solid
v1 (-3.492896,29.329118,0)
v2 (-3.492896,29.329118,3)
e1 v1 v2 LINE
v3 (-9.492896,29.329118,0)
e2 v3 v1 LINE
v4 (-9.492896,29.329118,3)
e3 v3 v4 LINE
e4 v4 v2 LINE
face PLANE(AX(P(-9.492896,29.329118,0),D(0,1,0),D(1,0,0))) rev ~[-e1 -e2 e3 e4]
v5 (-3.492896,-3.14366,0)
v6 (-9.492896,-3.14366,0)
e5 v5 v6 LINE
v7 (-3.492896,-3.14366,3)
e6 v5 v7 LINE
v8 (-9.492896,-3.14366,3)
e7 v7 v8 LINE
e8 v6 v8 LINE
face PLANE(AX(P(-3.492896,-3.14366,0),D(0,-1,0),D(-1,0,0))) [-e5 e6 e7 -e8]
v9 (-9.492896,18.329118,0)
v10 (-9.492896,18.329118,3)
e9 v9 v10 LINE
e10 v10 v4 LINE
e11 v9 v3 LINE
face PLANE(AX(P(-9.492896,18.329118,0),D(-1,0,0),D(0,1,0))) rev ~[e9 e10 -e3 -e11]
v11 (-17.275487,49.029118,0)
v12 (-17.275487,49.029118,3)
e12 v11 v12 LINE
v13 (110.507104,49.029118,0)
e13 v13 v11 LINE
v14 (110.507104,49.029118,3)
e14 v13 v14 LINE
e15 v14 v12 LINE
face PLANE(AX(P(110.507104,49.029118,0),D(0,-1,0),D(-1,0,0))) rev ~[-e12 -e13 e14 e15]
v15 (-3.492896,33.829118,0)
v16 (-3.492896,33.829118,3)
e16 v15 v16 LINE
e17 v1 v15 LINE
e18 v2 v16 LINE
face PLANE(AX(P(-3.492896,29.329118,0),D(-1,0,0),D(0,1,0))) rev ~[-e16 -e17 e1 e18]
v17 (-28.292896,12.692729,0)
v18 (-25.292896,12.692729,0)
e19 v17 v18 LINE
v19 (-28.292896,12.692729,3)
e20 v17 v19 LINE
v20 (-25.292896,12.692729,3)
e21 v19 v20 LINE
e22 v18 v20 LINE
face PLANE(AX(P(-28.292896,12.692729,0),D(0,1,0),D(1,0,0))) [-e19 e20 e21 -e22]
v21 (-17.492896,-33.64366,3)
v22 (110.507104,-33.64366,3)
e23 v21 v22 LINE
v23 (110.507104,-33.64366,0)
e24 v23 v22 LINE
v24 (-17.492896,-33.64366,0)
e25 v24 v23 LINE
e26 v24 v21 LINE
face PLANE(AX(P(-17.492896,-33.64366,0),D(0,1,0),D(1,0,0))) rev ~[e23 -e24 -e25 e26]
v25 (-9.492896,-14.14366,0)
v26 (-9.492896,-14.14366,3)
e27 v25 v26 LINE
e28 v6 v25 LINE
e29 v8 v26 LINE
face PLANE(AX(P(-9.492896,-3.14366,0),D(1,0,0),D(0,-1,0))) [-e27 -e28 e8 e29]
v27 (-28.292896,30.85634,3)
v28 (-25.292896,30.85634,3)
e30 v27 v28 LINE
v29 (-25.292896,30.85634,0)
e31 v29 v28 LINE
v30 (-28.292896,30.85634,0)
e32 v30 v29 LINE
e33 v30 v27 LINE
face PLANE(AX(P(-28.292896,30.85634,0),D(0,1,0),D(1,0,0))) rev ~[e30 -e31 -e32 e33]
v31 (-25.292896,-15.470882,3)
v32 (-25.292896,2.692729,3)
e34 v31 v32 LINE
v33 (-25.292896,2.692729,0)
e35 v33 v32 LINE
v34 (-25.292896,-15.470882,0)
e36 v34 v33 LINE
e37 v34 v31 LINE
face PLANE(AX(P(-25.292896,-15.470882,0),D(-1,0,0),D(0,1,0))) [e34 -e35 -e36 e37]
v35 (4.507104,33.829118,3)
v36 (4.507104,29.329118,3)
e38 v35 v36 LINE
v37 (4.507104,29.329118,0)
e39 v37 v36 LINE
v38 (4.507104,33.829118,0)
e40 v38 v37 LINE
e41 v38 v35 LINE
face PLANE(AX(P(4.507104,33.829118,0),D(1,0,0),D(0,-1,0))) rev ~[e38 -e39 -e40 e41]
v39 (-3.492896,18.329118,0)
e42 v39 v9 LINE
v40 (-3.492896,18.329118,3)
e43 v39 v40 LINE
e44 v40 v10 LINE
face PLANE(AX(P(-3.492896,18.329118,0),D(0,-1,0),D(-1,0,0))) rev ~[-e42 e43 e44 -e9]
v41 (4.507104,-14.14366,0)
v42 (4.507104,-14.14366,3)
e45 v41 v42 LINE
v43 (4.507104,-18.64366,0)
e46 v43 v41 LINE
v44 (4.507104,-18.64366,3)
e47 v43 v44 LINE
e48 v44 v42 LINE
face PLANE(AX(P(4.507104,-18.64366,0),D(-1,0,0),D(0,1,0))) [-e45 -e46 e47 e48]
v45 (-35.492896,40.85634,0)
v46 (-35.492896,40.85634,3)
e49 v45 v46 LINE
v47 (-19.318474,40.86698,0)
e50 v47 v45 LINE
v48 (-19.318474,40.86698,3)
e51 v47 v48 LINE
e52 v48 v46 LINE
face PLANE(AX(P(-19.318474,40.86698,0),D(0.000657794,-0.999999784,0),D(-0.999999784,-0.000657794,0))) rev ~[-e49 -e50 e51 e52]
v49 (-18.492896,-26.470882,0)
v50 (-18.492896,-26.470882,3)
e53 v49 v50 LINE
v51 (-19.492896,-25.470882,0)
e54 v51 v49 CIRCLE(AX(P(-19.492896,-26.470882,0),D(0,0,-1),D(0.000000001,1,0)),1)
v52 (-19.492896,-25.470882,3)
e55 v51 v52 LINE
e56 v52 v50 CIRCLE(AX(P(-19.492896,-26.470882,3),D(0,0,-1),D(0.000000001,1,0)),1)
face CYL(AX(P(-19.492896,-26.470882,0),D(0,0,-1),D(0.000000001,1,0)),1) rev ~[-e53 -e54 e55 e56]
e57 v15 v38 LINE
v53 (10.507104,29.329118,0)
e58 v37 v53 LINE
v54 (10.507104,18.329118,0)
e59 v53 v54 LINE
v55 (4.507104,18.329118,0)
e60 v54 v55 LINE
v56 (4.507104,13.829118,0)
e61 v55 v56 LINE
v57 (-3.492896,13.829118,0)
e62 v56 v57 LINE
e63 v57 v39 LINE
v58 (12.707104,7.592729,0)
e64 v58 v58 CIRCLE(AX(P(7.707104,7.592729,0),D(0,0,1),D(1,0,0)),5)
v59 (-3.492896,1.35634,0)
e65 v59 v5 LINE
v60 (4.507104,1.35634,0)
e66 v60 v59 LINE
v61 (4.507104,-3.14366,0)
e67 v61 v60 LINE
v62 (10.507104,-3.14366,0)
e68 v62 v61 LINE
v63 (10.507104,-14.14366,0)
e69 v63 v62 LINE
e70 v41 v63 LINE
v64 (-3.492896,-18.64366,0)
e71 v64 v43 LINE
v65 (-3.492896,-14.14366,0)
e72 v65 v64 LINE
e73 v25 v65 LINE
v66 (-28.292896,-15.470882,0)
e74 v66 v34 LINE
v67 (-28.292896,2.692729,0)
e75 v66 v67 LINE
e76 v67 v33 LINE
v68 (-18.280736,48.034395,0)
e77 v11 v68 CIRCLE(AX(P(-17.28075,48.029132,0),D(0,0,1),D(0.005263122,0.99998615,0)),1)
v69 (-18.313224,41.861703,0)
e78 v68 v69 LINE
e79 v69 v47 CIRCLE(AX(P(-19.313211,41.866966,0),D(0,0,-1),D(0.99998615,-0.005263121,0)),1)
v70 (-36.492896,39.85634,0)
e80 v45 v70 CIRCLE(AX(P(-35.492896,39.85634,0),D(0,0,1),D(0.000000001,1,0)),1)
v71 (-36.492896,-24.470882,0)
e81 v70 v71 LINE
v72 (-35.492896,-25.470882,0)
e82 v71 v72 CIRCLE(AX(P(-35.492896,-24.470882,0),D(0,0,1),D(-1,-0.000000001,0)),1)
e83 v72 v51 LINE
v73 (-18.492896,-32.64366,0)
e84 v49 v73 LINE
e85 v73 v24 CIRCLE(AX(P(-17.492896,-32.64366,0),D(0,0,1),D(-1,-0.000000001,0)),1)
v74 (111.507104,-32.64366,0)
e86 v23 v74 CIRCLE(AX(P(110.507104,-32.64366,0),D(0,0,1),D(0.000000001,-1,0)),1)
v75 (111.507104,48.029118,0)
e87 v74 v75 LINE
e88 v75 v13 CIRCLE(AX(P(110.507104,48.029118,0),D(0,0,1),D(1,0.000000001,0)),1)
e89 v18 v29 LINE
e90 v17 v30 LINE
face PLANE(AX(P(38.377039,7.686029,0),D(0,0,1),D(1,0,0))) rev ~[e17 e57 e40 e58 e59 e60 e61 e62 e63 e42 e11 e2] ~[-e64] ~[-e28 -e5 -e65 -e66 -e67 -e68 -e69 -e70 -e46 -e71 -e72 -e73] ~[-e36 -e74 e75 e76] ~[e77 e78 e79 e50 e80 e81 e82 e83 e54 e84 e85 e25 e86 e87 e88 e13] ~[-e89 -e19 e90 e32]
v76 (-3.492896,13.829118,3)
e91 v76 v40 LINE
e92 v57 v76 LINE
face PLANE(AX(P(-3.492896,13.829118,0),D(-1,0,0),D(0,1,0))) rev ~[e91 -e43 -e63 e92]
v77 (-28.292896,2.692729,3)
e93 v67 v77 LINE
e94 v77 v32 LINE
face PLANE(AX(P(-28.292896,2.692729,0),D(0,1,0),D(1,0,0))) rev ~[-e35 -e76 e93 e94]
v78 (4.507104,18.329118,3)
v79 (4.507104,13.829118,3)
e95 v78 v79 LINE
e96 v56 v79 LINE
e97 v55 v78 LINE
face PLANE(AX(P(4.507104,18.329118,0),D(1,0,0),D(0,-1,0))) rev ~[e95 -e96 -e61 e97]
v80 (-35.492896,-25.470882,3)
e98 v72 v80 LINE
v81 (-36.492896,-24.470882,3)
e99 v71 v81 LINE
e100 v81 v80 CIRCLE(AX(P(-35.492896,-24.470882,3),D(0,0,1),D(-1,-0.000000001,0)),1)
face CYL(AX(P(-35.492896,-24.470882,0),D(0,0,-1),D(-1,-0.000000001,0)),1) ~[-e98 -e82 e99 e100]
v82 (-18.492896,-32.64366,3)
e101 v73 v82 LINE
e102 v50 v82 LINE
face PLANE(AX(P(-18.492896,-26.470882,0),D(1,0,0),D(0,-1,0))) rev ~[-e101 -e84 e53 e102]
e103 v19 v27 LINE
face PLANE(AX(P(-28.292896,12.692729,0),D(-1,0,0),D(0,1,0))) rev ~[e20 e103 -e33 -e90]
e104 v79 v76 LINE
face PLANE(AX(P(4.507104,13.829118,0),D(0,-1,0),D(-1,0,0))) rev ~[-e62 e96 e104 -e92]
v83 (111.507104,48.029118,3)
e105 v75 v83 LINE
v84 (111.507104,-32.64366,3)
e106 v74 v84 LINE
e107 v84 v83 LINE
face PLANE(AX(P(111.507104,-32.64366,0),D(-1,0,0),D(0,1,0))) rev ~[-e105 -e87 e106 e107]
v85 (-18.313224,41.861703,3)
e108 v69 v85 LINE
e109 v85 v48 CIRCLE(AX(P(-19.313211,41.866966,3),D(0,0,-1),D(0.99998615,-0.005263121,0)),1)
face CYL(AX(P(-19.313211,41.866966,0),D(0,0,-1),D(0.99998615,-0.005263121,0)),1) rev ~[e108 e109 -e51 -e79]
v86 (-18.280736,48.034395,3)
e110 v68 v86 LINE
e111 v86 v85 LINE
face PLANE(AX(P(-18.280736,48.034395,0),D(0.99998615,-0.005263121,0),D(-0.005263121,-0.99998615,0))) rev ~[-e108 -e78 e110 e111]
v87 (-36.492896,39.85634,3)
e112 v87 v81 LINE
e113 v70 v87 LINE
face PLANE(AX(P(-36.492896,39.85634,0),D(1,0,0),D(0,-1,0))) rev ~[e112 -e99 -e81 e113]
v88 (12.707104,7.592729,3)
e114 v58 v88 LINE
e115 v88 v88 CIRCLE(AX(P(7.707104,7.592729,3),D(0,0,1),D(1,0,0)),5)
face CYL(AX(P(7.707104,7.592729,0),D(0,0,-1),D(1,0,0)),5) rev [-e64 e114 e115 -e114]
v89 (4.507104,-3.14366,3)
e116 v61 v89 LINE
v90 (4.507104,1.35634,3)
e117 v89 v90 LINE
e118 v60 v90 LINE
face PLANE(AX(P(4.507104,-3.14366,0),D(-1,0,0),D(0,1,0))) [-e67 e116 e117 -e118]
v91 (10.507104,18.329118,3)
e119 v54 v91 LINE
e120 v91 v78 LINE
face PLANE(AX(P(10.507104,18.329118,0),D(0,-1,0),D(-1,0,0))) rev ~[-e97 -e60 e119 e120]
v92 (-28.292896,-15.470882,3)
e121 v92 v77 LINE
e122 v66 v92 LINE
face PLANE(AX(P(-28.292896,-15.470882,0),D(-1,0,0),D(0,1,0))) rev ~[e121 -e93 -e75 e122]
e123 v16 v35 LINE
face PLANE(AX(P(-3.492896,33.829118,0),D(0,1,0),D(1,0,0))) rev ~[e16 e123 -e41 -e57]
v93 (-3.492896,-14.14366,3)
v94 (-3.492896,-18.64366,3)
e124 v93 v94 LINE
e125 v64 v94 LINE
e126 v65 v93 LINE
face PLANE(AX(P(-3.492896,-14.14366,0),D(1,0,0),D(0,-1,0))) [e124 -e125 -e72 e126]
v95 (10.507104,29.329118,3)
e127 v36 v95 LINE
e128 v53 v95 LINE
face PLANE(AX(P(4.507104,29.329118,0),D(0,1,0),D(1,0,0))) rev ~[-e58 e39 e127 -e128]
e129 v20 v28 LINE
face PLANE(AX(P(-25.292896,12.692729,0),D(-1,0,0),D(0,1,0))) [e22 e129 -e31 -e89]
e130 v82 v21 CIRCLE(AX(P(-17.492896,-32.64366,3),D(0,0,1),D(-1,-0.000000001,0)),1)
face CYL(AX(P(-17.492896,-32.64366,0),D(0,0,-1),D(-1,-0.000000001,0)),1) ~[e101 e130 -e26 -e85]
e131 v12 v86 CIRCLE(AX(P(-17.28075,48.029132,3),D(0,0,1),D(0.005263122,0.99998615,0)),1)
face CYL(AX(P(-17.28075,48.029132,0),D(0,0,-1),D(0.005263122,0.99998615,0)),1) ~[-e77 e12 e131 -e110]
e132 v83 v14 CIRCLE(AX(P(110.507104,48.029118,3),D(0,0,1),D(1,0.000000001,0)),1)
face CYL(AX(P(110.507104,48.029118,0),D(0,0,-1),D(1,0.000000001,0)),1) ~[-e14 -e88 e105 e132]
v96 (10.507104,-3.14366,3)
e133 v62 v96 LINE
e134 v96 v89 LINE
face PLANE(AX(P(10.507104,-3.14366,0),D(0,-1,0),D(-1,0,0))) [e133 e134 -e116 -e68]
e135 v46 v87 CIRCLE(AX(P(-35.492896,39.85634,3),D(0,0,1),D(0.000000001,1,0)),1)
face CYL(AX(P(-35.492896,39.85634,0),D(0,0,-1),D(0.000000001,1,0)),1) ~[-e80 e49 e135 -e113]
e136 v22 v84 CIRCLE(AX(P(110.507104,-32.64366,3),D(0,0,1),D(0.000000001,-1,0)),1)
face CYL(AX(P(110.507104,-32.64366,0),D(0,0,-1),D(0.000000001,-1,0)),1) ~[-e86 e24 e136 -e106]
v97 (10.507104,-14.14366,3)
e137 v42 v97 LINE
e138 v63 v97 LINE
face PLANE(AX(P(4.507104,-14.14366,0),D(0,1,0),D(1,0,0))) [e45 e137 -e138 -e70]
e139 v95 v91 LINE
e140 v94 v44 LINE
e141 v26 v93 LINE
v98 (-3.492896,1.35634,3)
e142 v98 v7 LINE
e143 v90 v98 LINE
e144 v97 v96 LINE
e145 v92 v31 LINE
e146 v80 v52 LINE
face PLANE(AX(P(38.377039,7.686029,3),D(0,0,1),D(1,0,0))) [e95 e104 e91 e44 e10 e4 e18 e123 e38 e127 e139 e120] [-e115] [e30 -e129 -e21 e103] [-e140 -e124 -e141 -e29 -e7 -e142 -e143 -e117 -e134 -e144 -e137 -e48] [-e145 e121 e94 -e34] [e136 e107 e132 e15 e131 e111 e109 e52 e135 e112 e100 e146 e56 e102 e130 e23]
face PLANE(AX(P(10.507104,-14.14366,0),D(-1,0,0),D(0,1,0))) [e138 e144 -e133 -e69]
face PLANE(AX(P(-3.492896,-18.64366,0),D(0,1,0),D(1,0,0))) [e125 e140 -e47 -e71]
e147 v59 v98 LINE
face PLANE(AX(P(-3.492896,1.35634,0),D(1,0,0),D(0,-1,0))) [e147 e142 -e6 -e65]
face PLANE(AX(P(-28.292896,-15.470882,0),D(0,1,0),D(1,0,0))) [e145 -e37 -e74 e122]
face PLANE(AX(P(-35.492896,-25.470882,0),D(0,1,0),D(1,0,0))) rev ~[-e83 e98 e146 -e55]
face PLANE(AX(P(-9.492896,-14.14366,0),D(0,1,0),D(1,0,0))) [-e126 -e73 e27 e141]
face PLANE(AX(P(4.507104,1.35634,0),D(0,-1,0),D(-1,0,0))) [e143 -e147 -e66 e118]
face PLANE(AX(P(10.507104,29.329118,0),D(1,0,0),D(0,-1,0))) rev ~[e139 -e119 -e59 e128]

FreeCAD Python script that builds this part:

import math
import FreeCAD as App
import Part
import Sketcher
from FreeCAD import Vector


def add_polygon(sketch, points):
    """Adds a closed chain of lines whose ends are joined by coincident constraints."""
    first, n = sketch.GeometryCount, len(points)
    for a, b in zip(points, points[1:] + points[:1]):
        sketch.addGeometry(Part.LineSegment(App.Vector(*a, 0), App.Vector(*b, 0)), False)
    for i in range(n):
        sketch.addConstraint(Sketcher.Constraint("Coincident", first + i, 2, first + (i + 1) % n, 1))

doc = App.newDocument("Part")
body = doc.addObject("PartDesign::Body", "Body")

sketch1 = body.newObject("Sketcher::SketchObject", "Sketch")
sketch1.AttachmentSupport = (doc.getObject("XY_Plane"), [""])
sketch1.MapMode = "FlatFace"
sketch1.addGeometry(Part.LineSegment(Vector(110.507104, 49.029118, 0), Vector(-17.275487, 49.029118, 0)), False)
sketch1.addGeometry(Part.ArcOfCircle(Part.Circle(Vector(-17.28075, 48.029132, 0), Vector(0, 0, 1), 1), math.radians(89.698444), math.radians(179.698444)), False)
sketch1.addGeometry(Part.LineSegment(Vector(-18.280736, 48.034395, 0), Vector(-18.313224, 41.861703, 0)), False)
sketch1.addGeometry(Part.ArcOfCircle(Part.Circle(Vector(-19.313211, 41.866966, 0), Vector(0, 0, 1), 1), math.radians(-90.301556), math.radians(-0.301556)), False)
sketch1.addGeometry(Part.LineSegment(Vector(-19.318474, 40.86698, 0), Vector(-35.492896, 40.85634, 0)), False)
sketch1.addGeometry(Part.ArcOfCircle(Part.Circle(Vector(-35.492896, 39.85634, 0), Vector(0, 0, 1), 1), math.radians(90), math.radians(180)), False)
sketch1.addGeometry(Part.LineSegment(Vector(-36.492896, 39.85634, 0), Vector(-36.492896, -24.470882, 0)), False)
sketch1.addGeometry(Part.ArcOfCircle(Part.Circle(Vector(-35.492896, -24.470882, 0), Vector(0, 0, 1), 1), math.radians(-180), math.radians(-90)), False)
sketch1.addGeometry(Part.LineSegment(Vector(-35.492896, -25.470882, 0), Vector(-19.492896, -25.470882, 0)), False)
sketch1.addGeometry(Part.ArcOfCircle(Part.Circle(Vector(-19.492896, -26.470882, 0), Vector(0, 0, 1), 1), math.radians(0), math.radians(90)), False)
sketch1.addGeometry(Part.LineSegment(Vector(-18.492896, -26.470882, 0), Vector(-18.492896, -32.64366, 0)), False)
sketch1.addGeometry(Part.ArcOfCircle(Part.Circle(Vector(-17.492896, -32.64366, 0), Vector(0, 0, 1), 1), math.radians(-180), math.radians(-90)), False)
sketch1.addGeometry(Part.LineSegment(Vector(-17.492896, -33.64366, 0), Vector(110.507104, -33.64366, 0)), False)
sketch1.addGeometry(Part.ArcOfCircle(Part.Circle(Vector(110.507104, -32.64366, 0), Vector(0, 0, 1), 1), math.radians(-90), math.radians(0)), False)
sketch1.addGeometry(Part.LineSegment(Vector(111.507104, -32.64366, 0), Vector(111.507104, 48.029118, 0)), False)
sketch1.addGeometry(Part.ArcOfCircle(Part.Circle(Vector(110.507104, 48.029118, 0), Vector(0, 0, 1), 1), math.radians(0), math.radians(90)), False)
add_polygon(sketch1, [(-25.292896, -15.470882), (-28.292896, -15.470882), (-28.292896, 2.692729), (-25.292896, 2.692729)])
add_polygon(sketch1, [(4.507104, -3.14366), (10.507104, -3.14366), (10.507104, -14.14366), (4.507104, -14.14366), (4.507104, -18.64366), (-3.492896, -18.64366), (-3.492896, -14.14366), (-9.492896, -14.14366), (-9.492896, -3.14366), (-3.492896, -3.14366), (-3.492896, 1.35634), (4.507104, 1.35634)])
add_polygon(sketch1, [(-25.292896, 12.692729), (-28.292896, 12.692729), (-28.292896, 30.85634), (-25.292896, 30.85634)])
sketch1.addGeometry(Part.Circle(Vector(7.707104, 7.592729, 0), Vector(0, 0, 1), 5), False)
add_polygon(sketch1, [(10.507104, 29.329118), (10.507104, 18.329118), (4.507104, 18.329118), (4.507104, 13.829118), (-3.492896, 13.829118), (-3.492896, 18.329118), (-9.492896, 18.329118), (-9.492896, 29.329118), (-3.492896, 29.329118), (-3.492896, 33.829118), (4.507104, 33.829118), (4.507104, 29.329118)])
sketch1.addConstraint([
    Sketcher.Constraint("Coincident", 0, 2, 1, 1),
    Sketcher.Constraint("Tangent", 1, 2, 2, 1),
    Sketcher.Constraint("Tangent", 2, 2, 3, 2),
    Sketcher.Constraint("Coincident", 3, 1, 4, 1),
    Sketcher.Constraint("Coincident", 4, 2, 5, 1),
    Sketcher.Constraint("Tangent", 5, 2, 6, 1),
    Sketcher.Constraint("Tangent", 6, 2, 7, 1),
    Sketcher.Constraint("Tangent", 7, 2, 8, 1),
    Sketcher.Constraint("Tangent", 8, 2, 9, 2),
    Sketcher.Constraint("Tangent", 9, 1, 10, 1),
    Sketcher.Constraint("Tangent", 10, 2, 11, 1),
    Sketcher.Constraint("Tangent", 11, 2, 12, 1),
    Sketcher.Constraint("Tangent", 12, 2, 13, 1),
    Sketcher.Constraint("Tangent", 13, 2, 14, 1),
    Sketcher.Constraint("Tangent", 14, 2, 15, 1),
    Sketcher.Constraint("Tangent", 15, 2, 0, 1),
    Sketcher.Constraint("Horizontal", 0),
    Sketcher.Constraint("Vertical", 6),
    Sketcher.Constraint("Horizontal", 8),
    Sketcher.Constraint("Vertical", 10),
    Sketcher.Constraint("Horizontal", 12),
    Sketcher.Constraint("Vertical", 14),
    Sketcher.Constraint("Horizontal", 16),
    Sketcher.Constraint("Vertical", 17),
    Sketcher.Constraint("Horizontal", 18),
    Sketcher.Constraint("Vertical", 19),
    Sketcher.Constraint("Horizontal", 20),
    Sketcher.Constraint("Vertical", 21),
    Sketcher.Constraint("Horizontal", 22),
    Sketcher.Constraint("Vertical", 23),
    Sketcher.Constraint("Horizontal", 24),
    Sketcher.Constraint("Vertical", 25),
    Sketcher.Constraint("Horizontal", 26),
    Sketcher.Constraint("Vertical", 27),
    Sketcher.Constraint("Horizontal", 28),
    Sketcher.Constraint("Vertical", 29),
    Sketcher.Constraint("Horizontal", 30),
    Sketcher.Constraint("Vertical", 31),
    Sketcher.Constraint("Horizontal", 32),
    Sketcher.Constraint("Vertical", 33),
    Sketcher.Constraint("Horizontal", 34),
    Sketcher.Constraint("Vertical", 35),
    Sketcher.Constraint("Vertical", 37),
    Sketcher.Constraint("Horizontal", 38),
    Sketcher.Constraint("Vertical", 39),
    Sketcher.Constraint("Horizontal", 40),
    Sketcher.Constraint("Vertical", 41),
    Sketcher.Constraint("Horizontal", 42),
    Sketcher.Constraint("Vertical", 43),
    Sketcher.Constraint("Horizontal", 44),
    Sketcher.Constraint("Vertical", 45),
    Sketcher.Constraint("Horizontal", 46),
    Sketcher.Constraint("Vertical", 47),
    Sketcher.Constraint("Horizontal", 48),
    Sketcher.Constraint("Equal", 1, 3),
    Sketcher.Constraint("Equal", 3, 5),
    Sketcher.Constraint("Equal", 5, 7),
    Sketcher.Constraint("Equal", 7, 9),
    Sketcher.Constraint("Equal", 9, 11),
    Sketcher.Constraint("Equal", 11, 13),
    Sketcher.Constraint("Equal", 13, 15),
    Sketcher.Constraint("Horizontal", 22, 2, 25, 2),
    Sketcher.Constraint("Horizontal", 20, 2, 27, 2),
    Sketcher.Constraint("Horizontal", 38, 2, 41, 2),
    Sketcher.Constraint("Horizontal", 44, 2, 47, 2),
    Sketcher.Constraint("Vertical", 7, 3, 4, 2),
    Sketcher.Constraint("Vertical", 25, 2, 28, 2),
    Sketcher.Constraint("Vertical", 23, 2, 30, 2),
    Sketcher.Constraint("Vertical", 17, 2, 32, 2),
    Sketcher.Constraint("Vertical", 19, 2, 34, 2),
    Sketcher.Constraint("Vertical", 21, 2, 37, 2),
    Sketcher.Constraint("Vertical", 31, 2, 38, 2),
    Sketcher.Constraint("Vertical", 29, 2, 40, 2),
    Sketcher.Constraint("Vertical", 27, 2, 42, 2),
    Sketcher.Constraint("Vertical", 41, 2, 44, 2),
    Sketcher.Constraint("Vertical", 39, 2, 46, 2),
    Sketcher.Constraint("Equal", 22, 26),
    Sketcher.Constraint("Equal", 25, 29),
    Sketcher.Constraint("Equal", 19, 33),
    Sketcher.Constraint("Equal", 27, 37),
    Sketcher.Constraint("Equal", 31, 39),
    Sketcher.Constraint("Equal", 41, 45),
    Sketcher.Constraint("Diameter", 36, 10.0),
    Sketcher.Constraint("Radius", 1, 1.0),
    Sketcher.Constraint("DistanceX", 8, 1, 8, 2, 16.0),
    Sketcher.Constraint("DistanceX", 12, 1, 12, 2, 128.0),
    Sketcher.Constraint("DistanceX", 16, 2, 16, 1, 3.0),
    Sketcher.Constraint("DistanceX", 20, 1, 20, 2, 6.0),
    Sketcher.Constraint("DistanceX", 24, 2, 24, 1, 8.0),
    Sketcher.Constraint("DistanceY", 21, 2, 21, 1, 11.0),
    Sketcher.Constraint("DistanceY", 23, 2, 23, 1, 4.5),
    Sketcher.Constraint("DistanceY", 7, 3, 16, 2, 9.0),
    Sketcher.Constraint("DistanceX", 9, 1, 20, 2, 29.0),
    Sketcher.Constraint("DistanceY", 17, 2, 32, 2, 10.0),
    Sketcher.Constraint("DistanceY", 33, 2, 5, 3, 9.0),
    Sketcher.Constraint("DistanceY", 11, 3, 5, 3, 72.5),
    Sketcher.Constraint("DistanceY", 9, 3, 15, 3, 74.5),
    Sketcher.Constraint("DistanceX", 9, 3, 36, 3, 27.2),
    Sketcher.Constraint("DistanceX", 7, 3, 16, 2, 7.2),
    Sketcher.Constraint("DistanceX", 0, 2, 0, 1, 127.782591),
    Sketcher.Constraint("DistanceY", 17, 1, 17, 2, 18.163611),
    Sketcher.Constraint("DistanceX", 1, 3, -1, 1, 17.28075),
    Sketcher.Constraint("DistanceY", -1, 1, 1, 3, 48.029132),
    Sketcher.Constraint("DistanceX", 3, 3, -1, 1, 19.313211),
    Sketcher.Constraint("DistanceY", -1, 1, 36, 3, 7.592729),
    Sketcher.Constraint("DistanceY", -1, 1, 3, 1, 40.86698),
    Sketcher.Constraint("DistanceY", 20, 2, -1, 1, 3.14366),
    Sketcher.Constraint("DistanceY", 7, 3, 3, 3, 66.337848),
    Sketcher.Constraint("DistanceX", 1, 2, 0, 2, 1.005249),
    Sketcher.Constraint("DistanceY", 36, 3, 37, 2, 10.736389),
])
pad1 = body.newObject("PartDesign::Pad", "Pad")
pad1.Profile = sketch1
pad1.Length = 3

doc.recompute()
